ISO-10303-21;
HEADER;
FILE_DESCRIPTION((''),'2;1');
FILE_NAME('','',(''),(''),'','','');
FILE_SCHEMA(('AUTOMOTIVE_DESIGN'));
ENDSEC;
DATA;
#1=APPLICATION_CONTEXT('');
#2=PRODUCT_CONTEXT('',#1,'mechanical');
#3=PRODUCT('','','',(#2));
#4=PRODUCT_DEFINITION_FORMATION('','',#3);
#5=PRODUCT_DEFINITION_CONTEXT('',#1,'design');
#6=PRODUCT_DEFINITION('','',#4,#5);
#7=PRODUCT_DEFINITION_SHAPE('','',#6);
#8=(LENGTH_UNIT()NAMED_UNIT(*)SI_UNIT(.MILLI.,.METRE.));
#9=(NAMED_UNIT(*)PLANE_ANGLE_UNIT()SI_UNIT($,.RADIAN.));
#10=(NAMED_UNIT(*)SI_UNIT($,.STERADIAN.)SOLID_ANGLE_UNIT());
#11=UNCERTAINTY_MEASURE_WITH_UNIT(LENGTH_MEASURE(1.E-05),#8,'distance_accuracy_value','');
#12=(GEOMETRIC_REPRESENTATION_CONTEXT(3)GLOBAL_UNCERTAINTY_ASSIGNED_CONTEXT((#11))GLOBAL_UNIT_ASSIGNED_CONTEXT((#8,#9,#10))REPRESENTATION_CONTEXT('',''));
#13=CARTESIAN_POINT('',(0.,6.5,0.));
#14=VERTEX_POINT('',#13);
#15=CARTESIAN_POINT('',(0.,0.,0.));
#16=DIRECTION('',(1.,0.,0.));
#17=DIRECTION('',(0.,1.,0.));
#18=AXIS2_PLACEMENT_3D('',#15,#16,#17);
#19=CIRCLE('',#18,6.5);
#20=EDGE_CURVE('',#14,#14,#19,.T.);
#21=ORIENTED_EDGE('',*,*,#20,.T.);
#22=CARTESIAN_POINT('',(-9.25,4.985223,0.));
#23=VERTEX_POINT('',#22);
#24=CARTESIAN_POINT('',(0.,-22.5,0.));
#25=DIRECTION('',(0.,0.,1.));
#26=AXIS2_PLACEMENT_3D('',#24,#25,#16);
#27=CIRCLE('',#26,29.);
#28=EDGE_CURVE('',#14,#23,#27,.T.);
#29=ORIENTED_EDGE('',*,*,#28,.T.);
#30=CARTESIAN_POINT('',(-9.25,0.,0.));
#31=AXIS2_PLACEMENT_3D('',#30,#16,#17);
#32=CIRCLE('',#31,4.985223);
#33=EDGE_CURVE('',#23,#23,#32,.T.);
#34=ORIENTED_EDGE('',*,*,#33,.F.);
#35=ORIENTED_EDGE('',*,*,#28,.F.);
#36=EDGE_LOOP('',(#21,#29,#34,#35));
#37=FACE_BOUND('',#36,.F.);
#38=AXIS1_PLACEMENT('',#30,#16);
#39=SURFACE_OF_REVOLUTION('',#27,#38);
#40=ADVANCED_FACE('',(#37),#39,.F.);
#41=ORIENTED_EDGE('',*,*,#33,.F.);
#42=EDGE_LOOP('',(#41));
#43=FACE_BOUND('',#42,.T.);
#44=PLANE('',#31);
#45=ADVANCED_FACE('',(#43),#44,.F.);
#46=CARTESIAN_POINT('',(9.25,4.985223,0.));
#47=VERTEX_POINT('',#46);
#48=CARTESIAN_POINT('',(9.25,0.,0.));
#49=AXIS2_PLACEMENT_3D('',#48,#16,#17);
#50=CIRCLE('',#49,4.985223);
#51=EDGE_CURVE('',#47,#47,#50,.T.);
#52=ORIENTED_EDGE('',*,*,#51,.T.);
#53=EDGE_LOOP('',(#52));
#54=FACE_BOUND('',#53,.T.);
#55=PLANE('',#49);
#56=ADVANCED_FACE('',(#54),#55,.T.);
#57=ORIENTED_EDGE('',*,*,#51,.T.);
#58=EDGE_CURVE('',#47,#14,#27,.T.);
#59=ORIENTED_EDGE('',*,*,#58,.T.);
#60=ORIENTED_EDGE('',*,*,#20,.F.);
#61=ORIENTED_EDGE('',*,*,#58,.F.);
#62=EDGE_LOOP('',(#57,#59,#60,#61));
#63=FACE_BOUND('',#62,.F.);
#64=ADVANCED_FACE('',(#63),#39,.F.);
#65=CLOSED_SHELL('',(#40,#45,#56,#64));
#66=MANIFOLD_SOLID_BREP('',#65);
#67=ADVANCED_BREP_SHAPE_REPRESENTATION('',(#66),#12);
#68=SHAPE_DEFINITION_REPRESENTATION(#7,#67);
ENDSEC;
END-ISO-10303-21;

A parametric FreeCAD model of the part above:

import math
import FreeCAD as App
import Part
import Sketcher

V = App.Vector
Q = App.Units.Quantity

doc = App.newDocument("Part")
body = doc.addObject("PartDesign::Body", "Body")

sketch1 = body.newObject("Sketcher::SketchObject", "Sketch")
sketch1.AttachmentSupport = (doc.getObject("XY_Plane"), [""])
sketch1.MapMode = "FlatFace"
sketch1.addGeometry([
    Part.LineSegment(V(9.25, 0, 0), V(9.25, 4.985223, 0)),
    Part.ArcOfCircle(Part.Circle(V(0, -22.5, 0), V(0, 0, 1), 29), math.radians(71.399625), math.radians(108.600375)),
    Part.LineSegment(V(-9.25, 4.985223, 0), V(-9.25, 0, 0)),
    Part.LineSegment(V(-9.25, 0, 0), V(9.25, 0, 0)),
], False)
sketch1.addConstraint([
    Sketcher.Constraint("Coincident", 0, 2, 1, 1),
    Sketcher.Constraint("Coincident", 1, 2, 2, 1),
    Sketcher.Constraint("Coincident", 2, 2, 3, 1),
    Sketcher.Constraint("Coincident", 3, 2, 0, 1),
    Sketcher.Constraint("Vertical", 0),
    Sketcher.Constraint("Vertical", 2),
    Sketcher.Constraint("Horizontal", 3),
    Sketcher.Constraint("Symmetric", 2, 2, 3, 2, -1, 1),
    Sketcher.Constraint("PointOnObject", 1, 3, -2),
    Sketcher.Constraint("Radius", 1, Q("29 mm")),
    Sketcher.Constraint("DistanceX", 3, 1, 3, 2, Q("18.5 mm")),
    Sketcher.Constraint("DistanceY", 1, 3, -1, 1, Q("22.5 mm")),
])
revolution = body.newObject("PartDesign::Revolution", "Revolution")
revolution.Profile = sketch1
revolution.ReferenceAxis = (sketch1, ["H_Axis"])
revolution.Angle = 360

doc.recompute()
